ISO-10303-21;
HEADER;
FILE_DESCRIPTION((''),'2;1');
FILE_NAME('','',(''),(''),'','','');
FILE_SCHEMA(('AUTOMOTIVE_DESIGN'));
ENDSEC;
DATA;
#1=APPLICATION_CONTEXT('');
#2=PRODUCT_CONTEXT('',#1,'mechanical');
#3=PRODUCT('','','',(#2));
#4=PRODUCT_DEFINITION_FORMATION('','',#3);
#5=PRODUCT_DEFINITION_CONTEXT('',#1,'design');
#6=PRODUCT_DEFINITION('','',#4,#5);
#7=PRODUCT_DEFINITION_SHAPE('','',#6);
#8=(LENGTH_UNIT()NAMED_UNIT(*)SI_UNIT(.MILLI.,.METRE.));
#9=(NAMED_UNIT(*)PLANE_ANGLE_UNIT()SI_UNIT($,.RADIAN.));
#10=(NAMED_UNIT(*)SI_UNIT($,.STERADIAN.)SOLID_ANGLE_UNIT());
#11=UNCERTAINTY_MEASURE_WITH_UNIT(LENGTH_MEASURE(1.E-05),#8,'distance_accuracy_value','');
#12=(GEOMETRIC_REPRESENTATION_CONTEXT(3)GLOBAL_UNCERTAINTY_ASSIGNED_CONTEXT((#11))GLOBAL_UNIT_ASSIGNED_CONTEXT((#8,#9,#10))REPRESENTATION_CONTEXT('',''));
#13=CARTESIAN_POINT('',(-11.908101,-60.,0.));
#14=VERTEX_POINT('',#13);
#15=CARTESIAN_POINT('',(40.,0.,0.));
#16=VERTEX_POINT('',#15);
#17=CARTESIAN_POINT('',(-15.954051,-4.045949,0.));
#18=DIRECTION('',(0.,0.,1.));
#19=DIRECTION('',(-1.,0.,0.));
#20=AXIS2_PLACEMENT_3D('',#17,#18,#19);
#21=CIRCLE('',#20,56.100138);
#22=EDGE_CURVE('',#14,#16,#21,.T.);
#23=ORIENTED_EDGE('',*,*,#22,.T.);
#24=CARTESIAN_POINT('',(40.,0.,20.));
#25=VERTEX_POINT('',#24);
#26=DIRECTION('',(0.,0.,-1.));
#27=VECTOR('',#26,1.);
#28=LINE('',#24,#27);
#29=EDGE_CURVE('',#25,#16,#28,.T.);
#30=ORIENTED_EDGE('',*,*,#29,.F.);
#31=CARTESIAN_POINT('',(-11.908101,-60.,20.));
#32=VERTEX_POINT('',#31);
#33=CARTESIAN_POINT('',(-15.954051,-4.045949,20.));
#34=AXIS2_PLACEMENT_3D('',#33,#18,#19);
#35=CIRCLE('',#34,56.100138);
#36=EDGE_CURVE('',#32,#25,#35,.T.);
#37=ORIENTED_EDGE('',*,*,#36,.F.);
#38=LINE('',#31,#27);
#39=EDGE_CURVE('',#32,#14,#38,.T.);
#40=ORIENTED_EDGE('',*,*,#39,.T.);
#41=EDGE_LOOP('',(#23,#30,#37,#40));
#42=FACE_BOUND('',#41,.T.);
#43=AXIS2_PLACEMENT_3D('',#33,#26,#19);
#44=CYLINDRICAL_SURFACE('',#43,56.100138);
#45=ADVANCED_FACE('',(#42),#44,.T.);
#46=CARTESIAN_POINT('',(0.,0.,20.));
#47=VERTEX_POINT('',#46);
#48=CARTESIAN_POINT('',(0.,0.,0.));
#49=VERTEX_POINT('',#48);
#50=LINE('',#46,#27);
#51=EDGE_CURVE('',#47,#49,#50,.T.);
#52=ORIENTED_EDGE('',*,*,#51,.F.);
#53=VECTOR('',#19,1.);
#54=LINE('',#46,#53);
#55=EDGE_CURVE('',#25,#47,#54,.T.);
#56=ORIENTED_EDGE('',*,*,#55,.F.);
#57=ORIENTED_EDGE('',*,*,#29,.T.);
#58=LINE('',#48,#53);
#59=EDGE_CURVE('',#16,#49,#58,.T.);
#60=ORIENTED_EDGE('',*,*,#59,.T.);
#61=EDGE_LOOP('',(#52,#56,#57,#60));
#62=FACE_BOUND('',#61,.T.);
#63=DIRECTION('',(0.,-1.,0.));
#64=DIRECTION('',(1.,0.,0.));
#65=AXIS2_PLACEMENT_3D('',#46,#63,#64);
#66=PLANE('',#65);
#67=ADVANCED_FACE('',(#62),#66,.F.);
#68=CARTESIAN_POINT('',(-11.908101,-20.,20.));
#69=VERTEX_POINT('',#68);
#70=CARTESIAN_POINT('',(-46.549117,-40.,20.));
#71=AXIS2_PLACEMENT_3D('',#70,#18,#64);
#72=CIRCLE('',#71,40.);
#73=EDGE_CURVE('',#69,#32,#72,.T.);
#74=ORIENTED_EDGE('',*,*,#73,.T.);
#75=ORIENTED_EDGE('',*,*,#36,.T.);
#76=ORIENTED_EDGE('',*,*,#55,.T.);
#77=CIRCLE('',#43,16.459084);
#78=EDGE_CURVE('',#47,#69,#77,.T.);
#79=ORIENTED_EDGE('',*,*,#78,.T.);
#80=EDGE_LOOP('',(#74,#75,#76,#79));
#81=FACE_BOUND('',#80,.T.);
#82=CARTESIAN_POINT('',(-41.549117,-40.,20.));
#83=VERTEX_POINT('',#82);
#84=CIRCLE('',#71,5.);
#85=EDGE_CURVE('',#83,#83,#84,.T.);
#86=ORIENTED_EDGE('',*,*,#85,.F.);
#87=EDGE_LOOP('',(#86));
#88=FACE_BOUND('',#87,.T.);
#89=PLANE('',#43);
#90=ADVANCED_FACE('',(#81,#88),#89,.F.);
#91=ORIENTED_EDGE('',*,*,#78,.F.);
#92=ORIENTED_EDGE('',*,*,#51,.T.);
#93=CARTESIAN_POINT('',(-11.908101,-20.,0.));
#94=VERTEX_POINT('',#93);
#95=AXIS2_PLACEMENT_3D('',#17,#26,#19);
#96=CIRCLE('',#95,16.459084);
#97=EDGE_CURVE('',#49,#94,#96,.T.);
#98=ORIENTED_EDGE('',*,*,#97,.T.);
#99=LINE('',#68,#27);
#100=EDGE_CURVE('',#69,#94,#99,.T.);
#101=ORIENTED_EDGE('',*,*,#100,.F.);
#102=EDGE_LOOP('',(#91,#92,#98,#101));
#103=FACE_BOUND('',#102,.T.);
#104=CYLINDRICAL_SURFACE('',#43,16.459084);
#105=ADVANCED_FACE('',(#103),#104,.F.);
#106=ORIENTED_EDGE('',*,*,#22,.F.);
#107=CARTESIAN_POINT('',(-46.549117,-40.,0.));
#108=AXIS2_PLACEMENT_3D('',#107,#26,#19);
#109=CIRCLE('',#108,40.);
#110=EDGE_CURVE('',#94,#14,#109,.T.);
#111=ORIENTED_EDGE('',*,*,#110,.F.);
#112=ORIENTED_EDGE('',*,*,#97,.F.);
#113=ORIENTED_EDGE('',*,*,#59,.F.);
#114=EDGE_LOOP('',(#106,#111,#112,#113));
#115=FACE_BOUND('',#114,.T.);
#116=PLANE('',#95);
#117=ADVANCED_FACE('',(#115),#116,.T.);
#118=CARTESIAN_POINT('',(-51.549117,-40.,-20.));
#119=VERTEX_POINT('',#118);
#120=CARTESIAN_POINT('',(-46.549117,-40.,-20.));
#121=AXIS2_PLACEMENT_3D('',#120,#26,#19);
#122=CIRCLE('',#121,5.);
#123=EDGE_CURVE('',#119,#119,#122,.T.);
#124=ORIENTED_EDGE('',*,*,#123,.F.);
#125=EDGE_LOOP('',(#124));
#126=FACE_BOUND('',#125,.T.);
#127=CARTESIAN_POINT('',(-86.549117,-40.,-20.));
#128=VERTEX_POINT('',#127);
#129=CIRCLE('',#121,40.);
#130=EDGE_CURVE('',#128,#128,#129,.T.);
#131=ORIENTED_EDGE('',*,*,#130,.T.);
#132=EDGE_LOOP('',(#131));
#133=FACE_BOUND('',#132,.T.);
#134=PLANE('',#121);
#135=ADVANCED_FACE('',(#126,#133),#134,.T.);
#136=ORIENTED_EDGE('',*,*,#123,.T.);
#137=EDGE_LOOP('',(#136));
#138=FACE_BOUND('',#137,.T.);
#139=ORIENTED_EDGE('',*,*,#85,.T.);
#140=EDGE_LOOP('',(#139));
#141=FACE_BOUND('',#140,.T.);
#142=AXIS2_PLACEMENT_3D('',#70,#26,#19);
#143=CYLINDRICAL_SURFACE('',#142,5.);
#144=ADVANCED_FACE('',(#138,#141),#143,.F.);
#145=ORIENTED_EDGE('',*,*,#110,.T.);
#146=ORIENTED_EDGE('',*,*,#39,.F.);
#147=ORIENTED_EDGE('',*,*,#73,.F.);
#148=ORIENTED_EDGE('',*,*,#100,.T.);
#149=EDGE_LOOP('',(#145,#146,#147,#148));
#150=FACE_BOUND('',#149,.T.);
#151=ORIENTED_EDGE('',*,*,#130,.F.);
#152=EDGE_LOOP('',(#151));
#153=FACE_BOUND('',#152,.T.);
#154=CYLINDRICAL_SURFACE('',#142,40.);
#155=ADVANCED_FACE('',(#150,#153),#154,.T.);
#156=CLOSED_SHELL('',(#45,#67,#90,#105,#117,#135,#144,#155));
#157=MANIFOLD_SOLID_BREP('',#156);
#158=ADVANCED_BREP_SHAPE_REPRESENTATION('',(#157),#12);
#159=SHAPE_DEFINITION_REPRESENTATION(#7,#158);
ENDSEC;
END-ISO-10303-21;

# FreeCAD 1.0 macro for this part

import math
import FreeCAD as App
import Part
import Sketcher
from FreeCAD import Vector
Q = App.Units.Quantity

doc = App.newDocument("Part")
body = doc.addObject("PartDesign::Body", "Body")

# Sketch on XY plane
sketch1 = body.newObject("Sketcher::SketchObject", "Sketch")
sketch1.AttachmentSupport = (doc.getObject("XY_Plane"), [""])
sketch1.MapMode = "FlatFace"
sketch1.addGeometry(Part.LineSegment(Vector(40, 0, 0), Vector(0, 0, 0)), False)
sketch1.addGeometry(Part.ArcOfCircle(Part.Circle(Vector(-16, -4, 0), Vector(0, 0, 1), 16), math.radians(-76), math.radians(14)), False)
sketch1.addGeometry(Part.ArcOfCircle(Part.Circle(Vector(-47, -40, 0), Vector(0, 0, 1), 40), math.radians(30), math.radians(330)), False)
sketch1.addGeometry(Part.ArcOfCircle(Part.Circle(Vector(-16, -4, 0), Vector(0, 0, 1), 56), math.radians(-86), math.radians(4)), False)
sketch1.addGeometry(Part.Circle(Vector(-47, -40, 0), Vector(0, 0, 1), 5), False)
sketch1.addConstraint(Sketcher.Constraint("Coincident", 0, 2, 1, 2))
sketch1.addConstraint(Sketcher.Constraint("Coincident", 1, 1, 2, 1))
sketch1.addConstraint(Sketcher.Constraint("Coincident", 2, 2, 3, 1))
sketch1.addConstraint(Sketcher.Constraint("Coincident", 3, 2, 0, 1))
sketch1.addConstraint(Sketcher.Constraint("Horizontal", 0))
sketch1.addConstraint(Sketcher.Constraint("Coincident", 0, 2, -1, 1))
sketch1.addConstraint(Sketcher.Constraint("Coincident", 3, 3, 1, 3))
sketch1.addConstraint(Sketcher.Constraint("Coincident", 4, 3, 2, 3))
sketch1.addConstraint(Sketcher.Constraint("Vertical", 1, 1, 2, 2))
sketch1.addConstraint(Sketcher.Constraint("Diameter", 4, Q("10 mm")))
sketch1.addConstraint(Sketcher.Constraint("Radius", 2, Q("40 mm")))
sketch1.addConstraint(Sketcher.Constraint("DistanceX", 0, 2, 0, 1, Q("40 mm")))
sketch1.addConstraint(Sketcher.Constraint("DistanceY", 2, 3, -1, 1, Q("40 mm")))
sketch1.addConstraint(Sketcher.Constraint("DistanceY", 1, 1, -1, 1, Q("20 mm")))
sketch1.addConstraint(Sketcher.Constraint("Radius", 3, Q("56.100138 mm")))
pad1 = body.newObject("PartDesign::Pad", "Pad")
pad1.Profile = sketch1
pad1.Length = 20

# Sketch on XY plane
sketch2 = body.newObject("Sketcher::SketchObject", "Sketch001")
sketch2.AttachmentSupport = (doc.getObject("XY_Plane"), [""])
sketch2.MapMode = "FlatFace"
sketch2.addGeometry(Part.Circle(Vector(-47, -40, 0), Vector(0, 0, 1), 40), False)
sketch2.addGeometry(Part.Circle(Vector(-47, -40, 0), Vector(0, 0, 1), 5), False)
sketch2.addConstraint(Sketcher.Constraint("Coincident", 1, 3, 0, 3))
sketch2.addConstraint(Sketcher.Constraint("Diameter", 0, Q("80 mm")))
sketch2.addConstraint(Sketcher.Constraint("Diameter", 1, Q("10 mm")))
sketch2.addConstraint(Sketcher.Constraint("DistanceY", 0, 3, -1, 1, Q("40 mm")))
sketch2.addConstraint(Sketcher.Constraint("DistanceX", 0, 3, -1, 1, Q("46.549117 mm")))
pad2 = body.newObject("PartDesign::Pad", "Pad001")
pad2.Profile = sketch2
pad2.Length = 20
pad2.Reversed = True

doc.recompute()
